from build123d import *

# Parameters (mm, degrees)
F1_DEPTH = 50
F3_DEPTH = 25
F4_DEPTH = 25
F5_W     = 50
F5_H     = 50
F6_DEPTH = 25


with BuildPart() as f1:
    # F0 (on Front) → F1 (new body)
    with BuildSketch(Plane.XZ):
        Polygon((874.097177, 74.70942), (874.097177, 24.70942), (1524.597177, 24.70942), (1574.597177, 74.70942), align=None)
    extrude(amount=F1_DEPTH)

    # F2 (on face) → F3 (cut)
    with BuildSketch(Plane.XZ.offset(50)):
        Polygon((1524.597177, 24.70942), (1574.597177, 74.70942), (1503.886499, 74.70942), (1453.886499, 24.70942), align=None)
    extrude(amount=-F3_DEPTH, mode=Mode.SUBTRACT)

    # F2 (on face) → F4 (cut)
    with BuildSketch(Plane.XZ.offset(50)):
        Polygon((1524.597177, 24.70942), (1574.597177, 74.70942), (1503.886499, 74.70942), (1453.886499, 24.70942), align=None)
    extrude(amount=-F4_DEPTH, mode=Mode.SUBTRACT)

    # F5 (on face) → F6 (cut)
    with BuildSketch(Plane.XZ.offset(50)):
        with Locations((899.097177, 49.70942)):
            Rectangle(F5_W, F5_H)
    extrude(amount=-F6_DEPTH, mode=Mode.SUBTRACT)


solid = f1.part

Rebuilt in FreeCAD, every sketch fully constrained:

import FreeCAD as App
import Part
import Sketcher
from FreeCAD import Vector
Q = App.Units.Quantity

doc = App.newDocument("Part")
body = doc.addObject("PartDesign::Body", "Body")

sketch1 = doc.addObject("Sketcher::SketchObject", "Sketch")
body.addObject(sketch1)
sketch1.AttachmentSupport = (doc.XZ_Plane, [""])
sketch1.MapMode = "FlatFace"
sketch1.addGeometry([
    Part.LineSegment(Vector(874, 75, 0), Vector(874, 25, 0)),
    Part.LineSegment(Vector(874, 25, 0), Vector(1525, 25, 0)),
    Part.LineSegment(Vector(1525, 25, 0), Vector(1575, 75, 0)),
    Part.LineSegment(Vector(1575, 75, 0), Vector(874, 75, 0)),
], False)
sketch1.addConstraint([
    Sketcher.Constraint("Coincident", 0, 2, 1, 1),
    Sketcher.Constraint("Coincident", 1, 2, 2, 1),
    Sketcher.Constraint("Coincident", 2, 2, 3, 1),
    Sketcher.Constraint("Coincident", 3, 2, 0, 1),
    Sketcher.Constraint("Vertical", 0),
    Sketcher.Constraint("Horizontal", 1),
    Sketcher.Constraint("Horizontal", 3),
    Sketcher.Constraint("DistanceY", 0, 2, 0, 1, Q("50 mm")),
    Sketcher.Constraint("Angle", 2, Q("45 deg")),
    Sketcher.Constraint("DistanceX", 1, 1, 1, 2, Q("650.5 mm")),
    Sketcher.Constraint("DistanceY", -1, 1, 0, 2, Q("24.70942 mm")),
    Sketcher.Constraint("DistanceX", -1, 1, 0, 2, Q("874.097177 mm")),
])
pad1 = doc.addObject("PartDesign::Pad", "Pad")
body.addObject(pad1)
pad1.Profile = sketch1
pad1.Length = 50

sketch2 = doc.addObject("Sketcher::SketchObject", "Sketch001")
body.addObject(sketch2)
sketch2.AttachmentSupport = (doc.XZ_Plane, [""])
sketch2.MapMode = "FlatFace"
sketch2.AttachmentOffset = App.Placement(Vector(0, 0, 50), App.Rotation())
sketch2.addGeometry([
    Part.LineSegment(Vector(1525, 25, 0), Vector(1575, 75, 0)),
    Part.LineSegment(Vector(1575, 75, 0), Vector(1504, 75, 0)),
    Part.LineSegment(Vector(1504, 75, 0), Vector(1454, 25, 0)),
    Part.LineSegment(Vector(1454, 25, 0), Vector(1525, 25, 0)),
], False)
sketch2.addConstraint([
    Sketcher.Constraint("Coincident", 0, 2, 1, 1),
    Sketcher.Constraint("Coincident", 1, 2, 2, 1),
    Sketcher.Constraint("Coincident", 2, 2, 3, 1),
    Sketcher.Constraint("Coincident", 3, 2, 0, 1),
    Sketcher.Constraint("Horizontal", 1),
    Sketcher.Constraint("Horizontal", 3),
    Sketcher.Constraint("Parallel", 0, 2),
    Sketcher.Constraint("Angle", 0, Q("45 deg")),
    Sketcher.Constraint("DistanceX", 2, 2, 1, 2, Q("50 mm")),
    Sketcher.Constraint("DistanceX", 1, 2, 1, 1, Q("70.710678 mm")),
    Sketcher.Constraint("DistanceX", -1, 1, 1, 2, Q("1503.886499 mm")),
    Sketcher.Constraint("DistanceY", -1, 1, 0, 2, Q("74.70942 mm")),
])
pocket1 = doc.addObject("PartDesign::Pocket", "Pocket")
body.addObject(pocket1)
pocket1.Profile = sketch2
pocket1.Length = 25

sketch3 = doc.addObject("Sketcher::SketchObject", "Sketch002")
body.addObject(sketch3)
sketch3.AttachmentSupport = (doc.XZ_Plane, [""])
sketch3.MapMode = "FlatFace"
sketch3.AttachmentOffset = App.Placement(Vector(0, 0, 50), App.Rotation())
sketch3.addGeometry([
    Part.LineSegment(Vector(1525, 25, 0), Vector(1575, 75, 0)),
    Part.LineSegment(Vector(1575, 75, 0), Vector(1504, 75, 0)),
    Part.LineSegment(Vector(1504, 75, 0), Vector(1454, 25, 0)),
    Part.LineSegment(Vector(1454, 25, 0), Vector(1525, 25, 0)),
], False)
sketch3.addConstraint([
    Sketcher.Constraint("Coincident", 0, 2, 1, 1),
    Sketcher.Constraint("Coincident", 1, 2, 2, 1),
    Sketcher.Constraint("Coincident", 2, 2, 3, 1),
    Sketcher.Constraint("Coincident", 3, 2, 0, 1),
    Sketcher.Constraint("Horizontal", 1),
    Sketcher.Constraint("Horizontal", 3),
    Sketcher.Constraint("Parallel", 0, 2),
    Sketcher.Constraint("Angle", 0, Q("45 deg")),
    Sketcher.Constraint("DistanceX", 2, 2, 1, 2, Q("50 mm")),
    Sketcher.Constraint("DistanceX", 1, 2, 1, 1, Q("70.710678 mm")),
    Sketcher.Constraint("DistanceX", -1, 1, 1, 2, Q("1503.886499 mm")),
    Sketcher.Constraint("DistanceY", -1, 1, 0, 2, Q("74.70942 mm")),
])
pocket2 = doc.addObject("PartDesign::Pocket", "Pocket001")
body.addObject(pocket2)
pocket2.Profile = sketch3
pocket2.Length = 25

sketch4 = doc.addObject("Sketcher::SketchObject", "Sketch003")
body.addObject(sketch4)
sketch4.AttachmentSupport = (doc.XZ_Plane, [""])
sketch4.MapMode = "FlatFace"
sketch4.AttachmentOffset = App.Placement(Vector(0, 0, 50), App.Rotation())
sketch4.addGeometry([
    Part.LineSegment(Vector(874, 75, 0), Vector(874, 25, 0)),
    Part.LineSegment(Vector(874, 25, 0), Vector(924, 25, 0)),
    Part.LineSegment(Vector(924, 25, 0), Vector(924, 75, 0)),
    Part.LineSegment(Vector(924, 75, 0), Vector(874, 75, 0)),
], False)
sketch4.addConstraint([
    Sketcher.Constraint("Coincident", 0, 2, 1, 1),
    Sketcher.Constraint("Coincident", 1, 2, 2, 1),
    Sketcher.Constraint("Coincident", 2, 2, 3, 1),
    Sketcher.Constraint("Coincident", 3, 2, 0, 1),
    Sketcher.Constraint("Vertical", 0),
    Sketcher.Constraint("Horizontal", 1),
    Sketcher.Constraint("Vertical", 2),
    Sketcher.Constraint("Horizontal", 3),
    Sketcher.Constraint("Equal", 3, 0),
    Sketcher.Constraint("DistanceX", 1, 1, 1, 2, Q("50 mm")),
    Sketcher.Constraint("DistanceY", -1, 1, 0, 2, Q("24.70942 mm")),
    Sketcher.Constraint("DistanceX", -1, 1, 0, 2, Q("874.097177 mm")),
])
pocket3 = doc.addObject("PartDesign::Pocket", "Pocket002")
body.addObject(pocket3)
pocket3.Profile = sketch4
pocket3.Length = 25

doc.recompute()
